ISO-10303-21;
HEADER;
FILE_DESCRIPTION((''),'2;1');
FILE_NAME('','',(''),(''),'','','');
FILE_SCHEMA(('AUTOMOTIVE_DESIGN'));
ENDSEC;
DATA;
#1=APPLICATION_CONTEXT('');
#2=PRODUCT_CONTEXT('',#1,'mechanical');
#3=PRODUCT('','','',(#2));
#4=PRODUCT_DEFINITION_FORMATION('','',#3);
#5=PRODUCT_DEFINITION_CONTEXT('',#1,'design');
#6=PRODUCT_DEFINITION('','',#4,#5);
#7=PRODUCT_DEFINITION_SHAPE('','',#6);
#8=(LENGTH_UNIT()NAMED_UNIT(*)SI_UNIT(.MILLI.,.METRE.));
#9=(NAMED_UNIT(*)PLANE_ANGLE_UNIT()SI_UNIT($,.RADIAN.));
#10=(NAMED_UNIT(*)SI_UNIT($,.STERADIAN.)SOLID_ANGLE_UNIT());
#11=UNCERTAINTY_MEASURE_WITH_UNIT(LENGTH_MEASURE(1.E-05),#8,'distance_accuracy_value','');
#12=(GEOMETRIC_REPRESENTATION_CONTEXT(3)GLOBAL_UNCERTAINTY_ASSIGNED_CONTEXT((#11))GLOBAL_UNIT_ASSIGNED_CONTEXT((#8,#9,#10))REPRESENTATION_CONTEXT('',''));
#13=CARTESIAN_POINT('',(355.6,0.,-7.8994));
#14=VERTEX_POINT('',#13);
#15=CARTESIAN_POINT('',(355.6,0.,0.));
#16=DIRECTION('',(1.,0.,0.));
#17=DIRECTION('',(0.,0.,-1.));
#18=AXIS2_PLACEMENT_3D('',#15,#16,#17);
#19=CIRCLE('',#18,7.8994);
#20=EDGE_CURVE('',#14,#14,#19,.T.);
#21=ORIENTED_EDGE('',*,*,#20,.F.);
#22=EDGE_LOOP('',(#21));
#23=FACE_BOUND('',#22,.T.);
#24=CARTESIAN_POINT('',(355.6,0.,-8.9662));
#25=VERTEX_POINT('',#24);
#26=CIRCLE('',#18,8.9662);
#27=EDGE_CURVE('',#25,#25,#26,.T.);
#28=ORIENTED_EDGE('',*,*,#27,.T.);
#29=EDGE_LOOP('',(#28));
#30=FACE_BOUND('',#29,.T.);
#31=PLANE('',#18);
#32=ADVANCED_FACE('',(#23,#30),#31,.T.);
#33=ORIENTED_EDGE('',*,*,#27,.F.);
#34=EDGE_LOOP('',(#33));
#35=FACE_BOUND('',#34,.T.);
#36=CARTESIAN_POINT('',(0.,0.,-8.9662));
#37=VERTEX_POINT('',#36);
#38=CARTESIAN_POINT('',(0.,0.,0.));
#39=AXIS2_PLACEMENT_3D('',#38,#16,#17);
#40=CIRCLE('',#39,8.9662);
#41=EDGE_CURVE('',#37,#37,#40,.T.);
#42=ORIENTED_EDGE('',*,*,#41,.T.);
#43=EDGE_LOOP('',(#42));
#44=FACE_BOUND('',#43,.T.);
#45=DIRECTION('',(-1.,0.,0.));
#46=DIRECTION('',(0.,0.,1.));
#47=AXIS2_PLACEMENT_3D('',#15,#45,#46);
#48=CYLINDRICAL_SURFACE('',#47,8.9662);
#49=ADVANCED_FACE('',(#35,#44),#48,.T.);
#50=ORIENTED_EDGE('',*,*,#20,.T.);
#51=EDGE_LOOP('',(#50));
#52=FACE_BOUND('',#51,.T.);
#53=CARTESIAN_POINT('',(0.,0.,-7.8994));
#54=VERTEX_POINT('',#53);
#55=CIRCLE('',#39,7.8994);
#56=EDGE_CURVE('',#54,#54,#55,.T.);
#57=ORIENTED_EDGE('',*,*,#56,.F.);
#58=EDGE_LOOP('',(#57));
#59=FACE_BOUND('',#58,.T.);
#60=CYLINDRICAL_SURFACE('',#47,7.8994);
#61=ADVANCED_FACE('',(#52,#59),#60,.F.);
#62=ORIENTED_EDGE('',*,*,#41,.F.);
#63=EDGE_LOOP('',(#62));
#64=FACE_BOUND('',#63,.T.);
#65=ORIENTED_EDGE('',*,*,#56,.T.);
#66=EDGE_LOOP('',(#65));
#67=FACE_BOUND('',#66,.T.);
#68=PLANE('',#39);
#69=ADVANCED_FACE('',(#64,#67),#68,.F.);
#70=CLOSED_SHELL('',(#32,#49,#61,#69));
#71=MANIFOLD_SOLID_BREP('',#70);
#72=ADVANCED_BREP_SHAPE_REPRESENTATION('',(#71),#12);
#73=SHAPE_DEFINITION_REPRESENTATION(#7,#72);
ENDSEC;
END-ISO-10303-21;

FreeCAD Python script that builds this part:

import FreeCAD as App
import Part
import Sketcher
Q = App.Units.Quantity

doc = App.newDocument("Part")
body = doc.addObject("PartDesign::Body", "Body")

# Sketch on YZ plane
sketch1 = body.newObject("Sketcher::SketchObject", "Sketch")
sketch1.AttachmentSupport = (doc.getObject("YZ_Plane"), [""])
sketch1.MapMode = "FlatFace"
sketch1.addGeometry([
    Part.Circle(App.Vector(0, 0, 0), App.Vector(0, 0, 1), 9),
    Part.Circle(App.Vector(0, 0, 0), App.Vector(0, 0, 1), 8),
], False)
sketch1.addConstraint([
    Sketcher.Constraint("Coincident", 0, 3, -1, 1),
    Sketcher.Constraint("Coincident", 1, 3, -1, 1),
    Sketcher.Constraint("Diameter", 0, Q("0.706 in")),
    Sketcher.Constraint("Diameter", 1, Q("0.622 in")),
])

# Sketch on XY plane
sketch2 = body.newObject("Sketcher::SketchObject", "Sketch001")
sketch2.AttachmentSupport = (doc.getObject("XY_Plane"), [""])
sketch2.MapMode = "FlatFace"
sketch2.addGeometry(Part.LineSegment(App.Vector(0, 0, 0), App.Vector(356, 0, 0)), False)
sketch2.addConstraint([
    Sketcher.Constraint("Horizontal", 0),
    Sketcher.Constraint("Coincident", 0, 1, -1, 1),
    Sketcher.Constraint("DistanceX", 0, 1, 0, 2, Q("14 in")),
])
doc.recompute()

additivepipe = body.newObject("PartDesign::AdditivePipe", "AdditivePipe")
additivepipe.Profile = sketch1
additivepipe.Spine = (sketch2, ["Edge1"])

doc.recompute()
